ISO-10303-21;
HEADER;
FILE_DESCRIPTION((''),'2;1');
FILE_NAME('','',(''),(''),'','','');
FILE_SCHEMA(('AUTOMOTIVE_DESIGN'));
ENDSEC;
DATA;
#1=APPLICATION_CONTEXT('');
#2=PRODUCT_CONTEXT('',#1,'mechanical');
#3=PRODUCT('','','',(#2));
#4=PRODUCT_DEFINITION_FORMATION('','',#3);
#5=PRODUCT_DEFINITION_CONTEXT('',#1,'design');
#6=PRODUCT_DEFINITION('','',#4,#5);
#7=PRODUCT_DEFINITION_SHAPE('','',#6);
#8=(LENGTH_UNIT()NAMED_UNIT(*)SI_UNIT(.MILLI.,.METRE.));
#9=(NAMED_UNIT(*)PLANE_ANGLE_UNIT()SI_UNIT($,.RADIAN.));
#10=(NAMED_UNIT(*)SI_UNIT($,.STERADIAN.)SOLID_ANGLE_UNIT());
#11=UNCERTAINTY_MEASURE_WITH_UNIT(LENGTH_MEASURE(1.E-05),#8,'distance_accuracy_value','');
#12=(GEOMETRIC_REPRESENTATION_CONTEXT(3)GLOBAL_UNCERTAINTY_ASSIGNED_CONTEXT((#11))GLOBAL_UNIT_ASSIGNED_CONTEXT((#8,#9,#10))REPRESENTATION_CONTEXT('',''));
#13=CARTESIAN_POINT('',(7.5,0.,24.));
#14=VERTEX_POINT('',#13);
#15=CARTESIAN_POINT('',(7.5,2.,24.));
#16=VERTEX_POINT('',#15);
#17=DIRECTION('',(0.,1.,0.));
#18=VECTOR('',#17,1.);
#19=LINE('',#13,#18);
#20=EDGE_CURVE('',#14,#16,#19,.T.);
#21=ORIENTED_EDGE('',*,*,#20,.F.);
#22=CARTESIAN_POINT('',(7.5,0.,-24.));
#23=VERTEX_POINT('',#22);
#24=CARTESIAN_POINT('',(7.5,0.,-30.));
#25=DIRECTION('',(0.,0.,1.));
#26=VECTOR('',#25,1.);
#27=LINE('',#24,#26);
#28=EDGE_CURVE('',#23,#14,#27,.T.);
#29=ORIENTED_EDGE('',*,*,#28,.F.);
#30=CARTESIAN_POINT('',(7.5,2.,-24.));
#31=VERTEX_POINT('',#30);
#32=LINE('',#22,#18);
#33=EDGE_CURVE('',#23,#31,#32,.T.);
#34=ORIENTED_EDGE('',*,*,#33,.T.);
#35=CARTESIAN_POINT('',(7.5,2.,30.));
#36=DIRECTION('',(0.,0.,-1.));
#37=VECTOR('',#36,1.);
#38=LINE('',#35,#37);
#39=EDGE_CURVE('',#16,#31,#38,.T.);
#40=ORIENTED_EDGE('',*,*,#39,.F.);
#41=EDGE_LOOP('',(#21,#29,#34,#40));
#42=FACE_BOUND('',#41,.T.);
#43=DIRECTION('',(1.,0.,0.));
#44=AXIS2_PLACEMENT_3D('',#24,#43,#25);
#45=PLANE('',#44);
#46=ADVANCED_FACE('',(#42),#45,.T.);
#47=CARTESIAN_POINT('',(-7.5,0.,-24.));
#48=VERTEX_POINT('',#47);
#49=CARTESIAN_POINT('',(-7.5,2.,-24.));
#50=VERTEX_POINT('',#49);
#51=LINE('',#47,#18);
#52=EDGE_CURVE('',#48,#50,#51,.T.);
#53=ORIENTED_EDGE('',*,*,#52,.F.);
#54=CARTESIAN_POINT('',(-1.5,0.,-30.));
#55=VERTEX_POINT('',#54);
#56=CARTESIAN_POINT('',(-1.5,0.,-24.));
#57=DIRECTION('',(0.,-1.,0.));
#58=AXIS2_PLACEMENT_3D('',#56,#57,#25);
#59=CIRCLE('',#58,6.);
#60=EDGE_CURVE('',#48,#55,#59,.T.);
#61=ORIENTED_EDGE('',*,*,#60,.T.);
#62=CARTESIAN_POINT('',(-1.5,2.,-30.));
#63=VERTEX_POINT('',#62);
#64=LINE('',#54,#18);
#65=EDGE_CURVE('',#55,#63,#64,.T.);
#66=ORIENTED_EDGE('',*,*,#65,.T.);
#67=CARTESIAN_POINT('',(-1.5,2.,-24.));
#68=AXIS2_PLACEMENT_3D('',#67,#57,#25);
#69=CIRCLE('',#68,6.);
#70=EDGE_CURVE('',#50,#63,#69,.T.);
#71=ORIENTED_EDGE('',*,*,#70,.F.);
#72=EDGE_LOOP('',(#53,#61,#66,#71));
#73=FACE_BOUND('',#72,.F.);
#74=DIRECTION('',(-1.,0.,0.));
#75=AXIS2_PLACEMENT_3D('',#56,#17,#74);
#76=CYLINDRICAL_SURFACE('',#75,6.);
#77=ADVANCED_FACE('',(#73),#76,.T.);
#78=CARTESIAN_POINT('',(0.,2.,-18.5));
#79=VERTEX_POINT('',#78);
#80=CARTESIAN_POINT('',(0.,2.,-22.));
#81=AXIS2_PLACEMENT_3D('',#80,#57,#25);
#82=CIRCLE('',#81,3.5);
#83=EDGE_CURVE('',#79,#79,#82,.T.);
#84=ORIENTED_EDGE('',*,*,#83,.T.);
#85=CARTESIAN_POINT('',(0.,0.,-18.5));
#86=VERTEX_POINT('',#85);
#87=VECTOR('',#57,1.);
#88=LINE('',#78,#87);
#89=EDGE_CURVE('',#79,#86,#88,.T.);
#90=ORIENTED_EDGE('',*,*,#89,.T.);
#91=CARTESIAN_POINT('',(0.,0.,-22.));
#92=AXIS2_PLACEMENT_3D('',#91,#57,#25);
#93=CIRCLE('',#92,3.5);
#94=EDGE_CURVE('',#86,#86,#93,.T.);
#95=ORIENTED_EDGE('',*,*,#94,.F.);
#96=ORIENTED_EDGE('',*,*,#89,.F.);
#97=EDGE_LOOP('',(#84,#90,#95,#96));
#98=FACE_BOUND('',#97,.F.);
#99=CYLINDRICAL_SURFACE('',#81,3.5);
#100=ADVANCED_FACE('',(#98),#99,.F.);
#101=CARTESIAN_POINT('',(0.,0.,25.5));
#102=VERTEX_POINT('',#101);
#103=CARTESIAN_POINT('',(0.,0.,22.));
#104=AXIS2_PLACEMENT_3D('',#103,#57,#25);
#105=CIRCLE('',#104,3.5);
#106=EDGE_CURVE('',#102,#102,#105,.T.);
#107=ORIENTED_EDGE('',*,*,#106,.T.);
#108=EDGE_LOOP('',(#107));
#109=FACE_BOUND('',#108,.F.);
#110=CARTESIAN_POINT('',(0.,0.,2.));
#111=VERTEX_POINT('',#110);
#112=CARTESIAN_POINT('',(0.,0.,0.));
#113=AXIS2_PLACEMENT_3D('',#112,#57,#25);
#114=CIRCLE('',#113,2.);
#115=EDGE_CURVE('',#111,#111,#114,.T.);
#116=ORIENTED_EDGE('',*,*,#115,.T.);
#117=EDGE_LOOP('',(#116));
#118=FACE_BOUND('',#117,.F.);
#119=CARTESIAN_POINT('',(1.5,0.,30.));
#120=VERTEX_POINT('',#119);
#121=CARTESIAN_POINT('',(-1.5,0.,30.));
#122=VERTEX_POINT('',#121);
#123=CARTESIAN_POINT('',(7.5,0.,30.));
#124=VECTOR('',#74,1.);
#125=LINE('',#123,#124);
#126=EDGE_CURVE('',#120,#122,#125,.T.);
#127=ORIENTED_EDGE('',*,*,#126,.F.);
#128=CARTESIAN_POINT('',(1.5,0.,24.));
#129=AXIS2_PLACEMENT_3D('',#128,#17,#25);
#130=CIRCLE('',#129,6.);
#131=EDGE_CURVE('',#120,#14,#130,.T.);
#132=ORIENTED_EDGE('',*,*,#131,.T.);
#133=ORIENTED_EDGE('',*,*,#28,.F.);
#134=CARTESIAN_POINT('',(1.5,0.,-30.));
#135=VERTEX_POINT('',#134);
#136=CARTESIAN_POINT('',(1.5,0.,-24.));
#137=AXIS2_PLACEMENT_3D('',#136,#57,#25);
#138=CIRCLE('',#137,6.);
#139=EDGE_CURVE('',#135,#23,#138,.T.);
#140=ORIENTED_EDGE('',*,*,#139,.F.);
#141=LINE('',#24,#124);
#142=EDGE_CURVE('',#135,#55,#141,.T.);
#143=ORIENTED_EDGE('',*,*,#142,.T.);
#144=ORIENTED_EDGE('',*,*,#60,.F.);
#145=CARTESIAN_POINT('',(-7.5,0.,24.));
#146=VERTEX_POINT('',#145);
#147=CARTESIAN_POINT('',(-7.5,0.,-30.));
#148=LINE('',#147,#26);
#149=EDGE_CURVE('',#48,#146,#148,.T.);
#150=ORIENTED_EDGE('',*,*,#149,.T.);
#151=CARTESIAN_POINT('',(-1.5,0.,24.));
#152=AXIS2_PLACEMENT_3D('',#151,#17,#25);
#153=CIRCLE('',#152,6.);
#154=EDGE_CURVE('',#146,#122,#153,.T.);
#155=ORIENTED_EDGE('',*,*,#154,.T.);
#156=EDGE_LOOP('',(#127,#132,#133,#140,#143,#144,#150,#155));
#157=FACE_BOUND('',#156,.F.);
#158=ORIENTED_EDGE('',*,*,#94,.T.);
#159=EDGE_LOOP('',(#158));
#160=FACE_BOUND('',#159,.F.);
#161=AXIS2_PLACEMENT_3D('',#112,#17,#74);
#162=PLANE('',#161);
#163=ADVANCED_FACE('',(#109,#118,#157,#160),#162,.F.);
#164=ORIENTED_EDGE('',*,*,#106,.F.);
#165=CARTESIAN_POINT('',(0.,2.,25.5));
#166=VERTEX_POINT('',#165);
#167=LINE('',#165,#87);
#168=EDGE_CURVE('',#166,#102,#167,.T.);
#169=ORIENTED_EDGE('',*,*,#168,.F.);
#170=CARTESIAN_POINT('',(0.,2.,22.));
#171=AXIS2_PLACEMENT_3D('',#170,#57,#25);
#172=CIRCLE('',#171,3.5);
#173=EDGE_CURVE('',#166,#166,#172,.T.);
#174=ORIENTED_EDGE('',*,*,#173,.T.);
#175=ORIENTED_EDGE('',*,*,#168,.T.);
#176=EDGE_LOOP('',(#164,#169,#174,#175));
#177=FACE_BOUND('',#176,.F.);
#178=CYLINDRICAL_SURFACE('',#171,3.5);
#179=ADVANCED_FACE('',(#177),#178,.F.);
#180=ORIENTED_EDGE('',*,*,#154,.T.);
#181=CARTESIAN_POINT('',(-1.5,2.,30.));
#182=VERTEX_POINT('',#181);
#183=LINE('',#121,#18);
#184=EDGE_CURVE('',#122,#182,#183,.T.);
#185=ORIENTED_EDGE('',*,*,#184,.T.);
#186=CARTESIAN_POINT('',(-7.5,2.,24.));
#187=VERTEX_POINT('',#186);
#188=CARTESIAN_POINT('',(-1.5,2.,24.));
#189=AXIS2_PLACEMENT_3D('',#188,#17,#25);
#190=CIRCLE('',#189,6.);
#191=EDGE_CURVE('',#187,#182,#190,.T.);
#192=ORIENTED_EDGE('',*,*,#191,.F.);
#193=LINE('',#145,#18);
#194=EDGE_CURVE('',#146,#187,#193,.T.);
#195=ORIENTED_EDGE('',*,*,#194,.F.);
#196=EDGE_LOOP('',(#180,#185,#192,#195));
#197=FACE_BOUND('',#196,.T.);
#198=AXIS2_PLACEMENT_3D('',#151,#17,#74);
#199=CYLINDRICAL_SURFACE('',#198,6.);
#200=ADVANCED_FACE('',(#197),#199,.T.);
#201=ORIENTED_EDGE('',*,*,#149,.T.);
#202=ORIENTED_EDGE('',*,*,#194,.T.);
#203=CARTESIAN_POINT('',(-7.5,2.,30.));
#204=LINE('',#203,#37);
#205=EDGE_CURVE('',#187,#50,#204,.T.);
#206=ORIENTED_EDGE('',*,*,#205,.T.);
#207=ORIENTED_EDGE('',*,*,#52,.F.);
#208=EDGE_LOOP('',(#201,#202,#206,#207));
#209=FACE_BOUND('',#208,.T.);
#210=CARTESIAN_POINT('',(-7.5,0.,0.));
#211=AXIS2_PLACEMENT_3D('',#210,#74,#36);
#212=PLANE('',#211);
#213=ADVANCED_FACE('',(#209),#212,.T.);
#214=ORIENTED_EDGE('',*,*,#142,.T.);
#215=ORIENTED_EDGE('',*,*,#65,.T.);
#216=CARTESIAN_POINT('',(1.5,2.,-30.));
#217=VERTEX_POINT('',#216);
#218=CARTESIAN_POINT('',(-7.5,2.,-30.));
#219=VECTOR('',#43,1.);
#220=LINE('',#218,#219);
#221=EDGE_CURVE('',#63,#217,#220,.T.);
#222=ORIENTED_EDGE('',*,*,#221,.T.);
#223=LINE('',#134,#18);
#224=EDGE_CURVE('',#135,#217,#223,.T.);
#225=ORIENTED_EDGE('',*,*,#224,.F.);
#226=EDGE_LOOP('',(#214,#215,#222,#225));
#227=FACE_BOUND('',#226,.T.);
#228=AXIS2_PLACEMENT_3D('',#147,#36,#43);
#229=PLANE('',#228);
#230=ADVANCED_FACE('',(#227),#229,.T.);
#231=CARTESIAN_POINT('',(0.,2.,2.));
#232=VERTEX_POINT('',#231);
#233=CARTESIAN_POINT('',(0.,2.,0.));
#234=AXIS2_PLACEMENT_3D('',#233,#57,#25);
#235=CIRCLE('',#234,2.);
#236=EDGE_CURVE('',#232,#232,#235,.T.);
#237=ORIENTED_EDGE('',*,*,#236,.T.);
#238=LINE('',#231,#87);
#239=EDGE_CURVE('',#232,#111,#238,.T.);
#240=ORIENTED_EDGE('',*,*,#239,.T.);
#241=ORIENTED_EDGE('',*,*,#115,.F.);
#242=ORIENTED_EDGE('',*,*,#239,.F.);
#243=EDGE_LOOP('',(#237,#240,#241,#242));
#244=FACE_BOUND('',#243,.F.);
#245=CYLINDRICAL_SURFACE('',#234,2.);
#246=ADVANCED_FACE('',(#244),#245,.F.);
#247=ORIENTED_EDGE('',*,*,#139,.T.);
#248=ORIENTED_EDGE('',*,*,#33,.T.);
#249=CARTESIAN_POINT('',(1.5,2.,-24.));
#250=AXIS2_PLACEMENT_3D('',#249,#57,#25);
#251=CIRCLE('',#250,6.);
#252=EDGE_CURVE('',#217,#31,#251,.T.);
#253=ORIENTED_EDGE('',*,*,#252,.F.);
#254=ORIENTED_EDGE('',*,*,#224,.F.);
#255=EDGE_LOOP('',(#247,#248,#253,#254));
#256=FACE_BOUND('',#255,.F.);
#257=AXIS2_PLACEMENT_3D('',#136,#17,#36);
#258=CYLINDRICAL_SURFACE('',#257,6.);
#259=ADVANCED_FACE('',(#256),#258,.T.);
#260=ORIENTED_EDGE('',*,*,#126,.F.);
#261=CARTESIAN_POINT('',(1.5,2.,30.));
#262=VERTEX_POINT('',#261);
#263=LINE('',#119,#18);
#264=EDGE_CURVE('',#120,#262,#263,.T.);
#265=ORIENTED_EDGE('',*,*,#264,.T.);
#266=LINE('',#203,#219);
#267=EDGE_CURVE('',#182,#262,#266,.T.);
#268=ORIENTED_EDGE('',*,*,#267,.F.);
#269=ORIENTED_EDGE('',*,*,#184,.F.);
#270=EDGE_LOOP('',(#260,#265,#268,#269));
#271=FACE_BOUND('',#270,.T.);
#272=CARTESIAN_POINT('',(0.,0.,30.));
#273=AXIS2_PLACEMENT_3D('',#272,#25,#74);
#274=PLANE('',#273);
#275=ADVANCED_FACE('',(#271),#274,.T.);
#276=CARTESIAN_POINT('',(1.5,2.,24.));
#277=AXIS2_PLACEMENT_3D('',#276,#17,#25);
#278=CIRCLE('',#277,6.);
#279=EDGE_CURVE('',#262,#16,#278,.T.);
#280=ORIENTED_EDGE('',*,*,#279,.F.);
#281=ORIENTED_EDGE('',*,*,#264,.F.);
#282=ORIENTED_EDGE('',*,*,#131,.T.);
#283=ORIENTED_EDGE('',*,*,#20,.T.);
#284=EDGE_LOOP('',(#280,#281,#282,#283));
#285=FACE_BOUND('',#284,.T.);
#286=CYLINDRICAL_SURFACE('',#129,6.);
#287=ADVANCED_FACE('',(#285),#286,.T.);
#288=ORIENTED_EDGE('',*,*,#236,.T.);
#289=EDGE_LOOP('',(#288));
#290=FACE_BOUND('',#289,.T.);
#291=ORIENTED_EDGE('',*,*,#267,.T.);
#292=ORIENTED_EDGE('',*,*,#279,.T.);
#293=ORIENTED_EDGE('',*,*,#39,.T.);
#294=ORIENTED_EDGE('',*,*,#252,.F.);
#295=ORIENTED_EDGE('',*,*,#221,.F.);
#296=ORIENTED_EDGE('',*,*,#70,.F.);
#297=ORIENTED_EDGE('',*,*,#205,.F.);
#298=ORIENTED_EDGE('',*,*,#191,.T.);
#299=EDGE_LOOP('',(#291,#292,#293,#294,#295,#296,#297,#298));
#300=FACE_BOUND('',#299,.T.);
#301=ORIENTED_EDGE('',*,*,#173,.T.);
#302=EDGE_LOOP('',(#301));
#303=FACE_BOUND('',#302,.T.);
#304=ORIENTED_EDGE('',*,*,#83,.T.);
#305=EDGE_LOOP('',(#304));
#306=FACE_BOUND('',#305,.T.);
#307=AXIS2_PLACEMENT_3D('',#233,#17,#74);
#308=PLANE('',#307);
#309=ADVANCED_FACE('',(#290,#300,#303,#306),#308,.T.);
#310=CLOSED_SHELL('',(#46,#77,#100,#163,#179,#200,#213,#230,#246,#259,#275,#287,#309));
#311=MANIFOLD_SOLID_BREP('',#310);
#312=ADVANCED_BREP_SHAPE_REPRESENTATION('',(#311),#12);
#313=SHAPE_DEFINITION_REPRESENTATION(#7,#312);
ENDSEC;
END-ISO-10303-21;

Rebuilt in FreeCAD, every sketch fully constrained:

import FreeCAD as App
import Part
import Sketcher
from FreeCAD import Vector
Q = App.Units.Quantity


def edges_at(feature, points):
    """Names of the edges that pass closest to the given points."""
    edges = feature.Shape.Edges
    near = lambda p: min(range(len(edges)), key=lambda i: edges[i].distToShape(Part.Vertex(*p))[0])
    return sorted({f"Edge{near(p) + 1}" for p in points})


def add_polygon(sketch, points):
    """Adds a closed chain of lines whose ends are joined by coincident constraints."""
    first, n = sketch.GeometryCount, len(points)
    for a, b in zip(points, points[1:] + points[:1]):
        sketch.addGeometry(Part.LineSegment(App.Vector(*a, 0), App.Vector(*b, 0)), False)
    for i in range(n):
        sketch.addConstraint(Sketcher.Constraint("Coincident", first + i, 2, first + (i + 1) % n, 1))

doc = App.newDocument("Part")
body = doc.addObject("PartDesign::Body", "Body")

sketch1 = body.newObject("Sketcher::SketchObject", "Sketch")
sketch1.AttachmentSupport = (doc.getObject("XZ_Plane"), [""])
sketch1.MapMode = "FlatFace"
add_polygon(sketch1, [(-7.5, -30), (-7.5, 30), (7.5, 30), (7.5, -30)])
sketch1.addConstraint([
    Sketcher.Constraint("Vertical", 0),
    Sketcher.Constraint("Horizontal", 1),
    Sketcher.Constraint("Vertical", 2),
    Sketcher.Constraint("Horizontal", 3),
    Sketcher.Constraint("Symmetric", 0, 2, 2, 2, -1, 1),
    Sketcher.Constraint("DistanceX", 1, 1, 1, 2, Q("15 mm")),
    Sketcher.Constraint("DistanceY", 0, 1, 0, 2, Q("60 mm")),
])
pad1 = body.newObject("PartDesign::Pad", "Pad")
pad1.Profile = sketch1
pad1.Length = 2
pad1.Reversed = True
doc.recompute()

fillet = body.newObject("PartDesign::Fillet", "Fillet")
fillet.Base = (pad1, edges_at(pad1, [
    (7.5, 1, -30),
    (-7.5, 1, -30),
    (-7.5, 1, 30),
    (7.5, 1, 30),
]))
fillet.Radius = 6

sketch2 = body.newObject("Sketcher::SketchObject", "Sketch001")
sketch2.AttachmentSupport = (doc.getObject("XZ_Plane"), [""])
sketch2.MapMode = "FlatFace"
sketch2.AttachmentOffset = App.Placement(Vector(0, 0, -2), App.Rotation())
sketch2.addGeometry(Part.Circle(Vector(0, 0, 0), Vector(0, 0, 1), 2), False)
sketch2.addConstraint([
    Sketcher.Constraint("Coincident", 0, 3, -1, 1),
    Sketcher.Constraint("Diameter", 0, Q("4 mm")),
])
doc.recompute()
hole = body.newObject("PartDesign::Hole", "Hole")
hole.Profile = sketch2
hole.ThreadType = "None"
hole.Diameter = 4
hole.DepthType = "ThroughAll"
hole.Reversed = True

sketch3 = body.newObject("Sketcher::SketchObject", "Sketch002")
sketch3.AttachmentSupport = (doc.getObject("XZ_Plane"), [""])
sketch3.MapMode = "FlatFace"
sketch3.AttachmentOffset = App.Placement(Vector(0, 0, -2), App.Rotation())
sketch3.addGeometry([
    Part.Circle(Vector(0, -22, 0), Vector(0, 0, 1), 3.5),
    Part.Circle(Vector(0, 22, 0), Vector(0, 0, 1), 3.5),
], False)
sketch3.addConstraint([
    Sketcher.Constraint("Equal", 0, 1),
    Sketcher.Constraint("Symmetric", 0, 3, 1, 3, -1, 1),
    Sketcher.Constraint("PointOnObject", 0, 3, -2),
    Sketcher.Constraint("Diameter", 0, Q("7 mm")),
    Sketcher.Constraint("DistanceY", 0, 3, -1, 1, Q("22 mm")),
])
doc.recompute()
hole2 = body.newObject("PartDesign::Hole", "Hole001")
hole2.Profile = sketch3
hole2.ThreadType = "None"
hole2.Diameter = 7
hole2.DepthType = "ThroughAll"
hole2.Reversed = True

doc.recompute()
